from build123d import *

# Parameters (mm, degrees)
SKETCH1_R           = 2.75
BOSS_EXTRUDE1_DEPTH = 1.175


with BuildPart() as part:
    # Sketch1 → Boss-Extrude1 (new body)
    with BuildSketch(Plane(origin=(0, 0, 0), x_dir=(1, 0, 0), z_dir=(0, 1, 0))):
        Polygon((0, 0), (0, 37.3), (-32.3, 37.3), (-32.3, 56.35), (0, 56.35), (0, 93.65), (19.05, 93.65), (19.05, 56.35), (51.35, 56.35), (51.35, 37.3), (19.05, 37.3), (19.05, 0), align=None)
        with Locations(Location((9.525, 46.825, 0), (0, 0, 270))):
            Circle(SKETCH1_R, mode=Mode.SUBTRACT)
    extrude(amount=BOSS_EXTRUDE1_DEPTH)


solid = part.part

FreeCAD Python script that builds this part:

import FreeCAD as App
import Part
import Sketcher
from FreeCAD import Vector
Q = App.Units.Quantity

doc = App.newDocument("Part")
body = doc.addObject("PartDesign::Body", "Body")

# Sketch on XZ plane
sketch1 = doc.addObject("Sketcher::SketchObject", "Sketch")
body.addObject(sketch1)
sketch1.AttachmentSupport = (doc.XZ_Plane, [""])
sketch1.MapMode = "FlatFace"
sketch1.addGeometry(Part.LineSegment(Vector(0, -37.3, 0), Vector(0, 0, 0)), False)
sketch1.addGeometry(Part.LineSegment(Vector(0, 0, 0), Vector(19.1, 0, 0)), False)
sketch1.addGeometry(Part.LineSegment(Vector(19.1, 0, 0), Vector(19.1, -37.3, 0)), False)
sketch1.addGeometry(Part.LineSegment(Vector(19.1, -37.3, 0), Vector(51.4, -37.3, 0)), False)
sketch1.addGeometry(Part.LineSegment(Vector(51.4, -37.3, 0), Vector(51.4, -56.4, 0)), False)
sketch1.addGeometry(Part.LineSegment(Vector(51.4, -56.4, 0), Vector(19.1, -56.4, 0)), False)
sketch1.addGeometry(Part.LineSegment(Vector(19.1, -56.4, 0), Vector(19.1, -93.7, 0)), False)
sketch1.addGeometry(Part.LineSegment(Vector(19.1, -93.7, 0), Vector(0, -93.7, 0)), False)
sketch1.addGeometry(Part.LineSegment(Vector(0, -93.7, 0), Vector(0, -56.4, 0)), False)
sketch1.addGeometry(Part.LineSegment(Vector(0, -56.4, 0), Vector(-32.3, -56.4, 0)), False)
sketch1.addGeometry(Part.LineSegment(Vector(-32.3, -56.4, 0), Vector(-32.3, -37.3, 0)), False)
sketch1.addGeometry(Part.LineSegment(Vector(-32.3, -37.3, 0), Vector(0, -37.3, 0)), False)
sketch1.addGeometry(Part.Circle(Vector(9.5, -46.8, 0), Vector(0, 0, 1), 2.8), False)
sketch1.addConstraint(Sketcher.Constraint("Coincident", 0, 2, 1, 1))
sketch1.addConstraint(Sketcher.Constraint("Coincident", 1, 2, 2, 1))
sketch1.addConstraint(Sketcher.Constraint("Coincident", 2, 2, 3, 1))
sketch1.addConstraint(Sketcher.Constraint("Coincident", 3, 2, 4, 1))
sketch1.addConstraint(Sketcher.Constraint("Coincident", 4, 2, 5, 1))
sketch1.addConstraint(Sketcher.Constraint("Coincident", 5, 2, 6, 1))
sketch1.addConstraint(Sketcher.Constraint("Coincident", 6, 2, 7, 1))
sketch1.addConstraint(Sketcher.Constraint("Coincident", 7, 2, 8, 1))
sketch1.addConstraint(Sketcher.Constraint("Coincident", 8, 2, 9, 1))
sketch1.addConstraint(Sketcher.Constraint("Coincident", 9, 2, 10, 1))
sketch1.addConstraint(Sketcher.Constraint("Coincident", 10, 2, 11, 1))
sketch1.addConstraint(Sketcher.Constraint("Coincident", 11, 2, 0, 1))
sketch1.addConstraint(Sketcher.Constraint("Vertical", 0))
sketch1.addConstraint(Sketcher.Constraint("Horizontal", 1))
sketch1.addConstraint(Sketcher.Constraint("Vertical", 2))
sketch1.addConstraint(Sketcher.Constraint("Horizontal", 3))
sketch1.addConstraint(Sketcher.Constraint("Vertical", 4))
sketch1.addConstraint(Sketcher.Constraint("Horizontal", 5))
sketch1.addConstraint(Sketcher.Constraint("Vertical", 6))
sketch1.addConstraint(Sketcher.Constraint("Horizontal", 7))
sketch1.addConstraint(Sketcher.Constraint("Vertical", 8))
sketch1.addConstraint(Sketcher.Constraint("Horizontal", 9))
sketch1.addConstraint(Sketcher.Constraint("Vertical", 10))
sketch1.addConstraint(Sketcher.Constraint("Horizontal", 11))
sketch1.addConstraint(Sketcher.Constraint("Coincident", 0, 2, -1, 1))
sketch1.addConstraint(Sketcher.Constraint("PointOnObject", 7, 2, -2))
sketch1.addConstraint(Sketcher.Constraint("Horizontal", 5, 2, 8, 2))
sketch1.addConstraint(Sketcher.Constraint("Horizontal", 3, 2, 10, 2))
sketch1.addConstraint(Sketcher.Constraint("Vertical", 2, 2, 5, 2))
sketch1.addConstraint(Sketcher.Constraint("Equal", 5, 9))
sketch1.addConstraint(Sketcher.Constraint("Equal", 7, 4))
sketch1.addConstraint(Sketcher.Constraint("Equal", 2, 6))
sketch1.addConstraint(Sketcher.Constraint("Diameter", 12, Q("5.5 mm")))
sketch1.addConstraint(Sketcher.Constraint("DistanceX", 3, 1, 3, 2, Q("32.3 mm")))
sketch1.addConstraint(Sketcher.Constraint("DistanceY", 0, 1, 0, 2, Q("37.3 mm")))
sketch1.addConstraint(Sketcher.Constraint("DistanceX", 1, 1, 1, 2, Q("19.05 mm")))
sketch1.addConstraint(Sketcher.Constraint("DistanceX", -1, 1, 12, 3, Q("9.525 mm")))
sketch1.addConstraint(Sketcher.Constraint("DistanceY", 12, 3, -1, 1, Q("46.825 mm")))
pad1 = doc.addObject("PartDesign::Pad", "Pad")
body.addObject(pad1)
pad1.Profile = sketch1
pad1.Length = 1.175
pad1.Reversed = True

doc.recompute()
